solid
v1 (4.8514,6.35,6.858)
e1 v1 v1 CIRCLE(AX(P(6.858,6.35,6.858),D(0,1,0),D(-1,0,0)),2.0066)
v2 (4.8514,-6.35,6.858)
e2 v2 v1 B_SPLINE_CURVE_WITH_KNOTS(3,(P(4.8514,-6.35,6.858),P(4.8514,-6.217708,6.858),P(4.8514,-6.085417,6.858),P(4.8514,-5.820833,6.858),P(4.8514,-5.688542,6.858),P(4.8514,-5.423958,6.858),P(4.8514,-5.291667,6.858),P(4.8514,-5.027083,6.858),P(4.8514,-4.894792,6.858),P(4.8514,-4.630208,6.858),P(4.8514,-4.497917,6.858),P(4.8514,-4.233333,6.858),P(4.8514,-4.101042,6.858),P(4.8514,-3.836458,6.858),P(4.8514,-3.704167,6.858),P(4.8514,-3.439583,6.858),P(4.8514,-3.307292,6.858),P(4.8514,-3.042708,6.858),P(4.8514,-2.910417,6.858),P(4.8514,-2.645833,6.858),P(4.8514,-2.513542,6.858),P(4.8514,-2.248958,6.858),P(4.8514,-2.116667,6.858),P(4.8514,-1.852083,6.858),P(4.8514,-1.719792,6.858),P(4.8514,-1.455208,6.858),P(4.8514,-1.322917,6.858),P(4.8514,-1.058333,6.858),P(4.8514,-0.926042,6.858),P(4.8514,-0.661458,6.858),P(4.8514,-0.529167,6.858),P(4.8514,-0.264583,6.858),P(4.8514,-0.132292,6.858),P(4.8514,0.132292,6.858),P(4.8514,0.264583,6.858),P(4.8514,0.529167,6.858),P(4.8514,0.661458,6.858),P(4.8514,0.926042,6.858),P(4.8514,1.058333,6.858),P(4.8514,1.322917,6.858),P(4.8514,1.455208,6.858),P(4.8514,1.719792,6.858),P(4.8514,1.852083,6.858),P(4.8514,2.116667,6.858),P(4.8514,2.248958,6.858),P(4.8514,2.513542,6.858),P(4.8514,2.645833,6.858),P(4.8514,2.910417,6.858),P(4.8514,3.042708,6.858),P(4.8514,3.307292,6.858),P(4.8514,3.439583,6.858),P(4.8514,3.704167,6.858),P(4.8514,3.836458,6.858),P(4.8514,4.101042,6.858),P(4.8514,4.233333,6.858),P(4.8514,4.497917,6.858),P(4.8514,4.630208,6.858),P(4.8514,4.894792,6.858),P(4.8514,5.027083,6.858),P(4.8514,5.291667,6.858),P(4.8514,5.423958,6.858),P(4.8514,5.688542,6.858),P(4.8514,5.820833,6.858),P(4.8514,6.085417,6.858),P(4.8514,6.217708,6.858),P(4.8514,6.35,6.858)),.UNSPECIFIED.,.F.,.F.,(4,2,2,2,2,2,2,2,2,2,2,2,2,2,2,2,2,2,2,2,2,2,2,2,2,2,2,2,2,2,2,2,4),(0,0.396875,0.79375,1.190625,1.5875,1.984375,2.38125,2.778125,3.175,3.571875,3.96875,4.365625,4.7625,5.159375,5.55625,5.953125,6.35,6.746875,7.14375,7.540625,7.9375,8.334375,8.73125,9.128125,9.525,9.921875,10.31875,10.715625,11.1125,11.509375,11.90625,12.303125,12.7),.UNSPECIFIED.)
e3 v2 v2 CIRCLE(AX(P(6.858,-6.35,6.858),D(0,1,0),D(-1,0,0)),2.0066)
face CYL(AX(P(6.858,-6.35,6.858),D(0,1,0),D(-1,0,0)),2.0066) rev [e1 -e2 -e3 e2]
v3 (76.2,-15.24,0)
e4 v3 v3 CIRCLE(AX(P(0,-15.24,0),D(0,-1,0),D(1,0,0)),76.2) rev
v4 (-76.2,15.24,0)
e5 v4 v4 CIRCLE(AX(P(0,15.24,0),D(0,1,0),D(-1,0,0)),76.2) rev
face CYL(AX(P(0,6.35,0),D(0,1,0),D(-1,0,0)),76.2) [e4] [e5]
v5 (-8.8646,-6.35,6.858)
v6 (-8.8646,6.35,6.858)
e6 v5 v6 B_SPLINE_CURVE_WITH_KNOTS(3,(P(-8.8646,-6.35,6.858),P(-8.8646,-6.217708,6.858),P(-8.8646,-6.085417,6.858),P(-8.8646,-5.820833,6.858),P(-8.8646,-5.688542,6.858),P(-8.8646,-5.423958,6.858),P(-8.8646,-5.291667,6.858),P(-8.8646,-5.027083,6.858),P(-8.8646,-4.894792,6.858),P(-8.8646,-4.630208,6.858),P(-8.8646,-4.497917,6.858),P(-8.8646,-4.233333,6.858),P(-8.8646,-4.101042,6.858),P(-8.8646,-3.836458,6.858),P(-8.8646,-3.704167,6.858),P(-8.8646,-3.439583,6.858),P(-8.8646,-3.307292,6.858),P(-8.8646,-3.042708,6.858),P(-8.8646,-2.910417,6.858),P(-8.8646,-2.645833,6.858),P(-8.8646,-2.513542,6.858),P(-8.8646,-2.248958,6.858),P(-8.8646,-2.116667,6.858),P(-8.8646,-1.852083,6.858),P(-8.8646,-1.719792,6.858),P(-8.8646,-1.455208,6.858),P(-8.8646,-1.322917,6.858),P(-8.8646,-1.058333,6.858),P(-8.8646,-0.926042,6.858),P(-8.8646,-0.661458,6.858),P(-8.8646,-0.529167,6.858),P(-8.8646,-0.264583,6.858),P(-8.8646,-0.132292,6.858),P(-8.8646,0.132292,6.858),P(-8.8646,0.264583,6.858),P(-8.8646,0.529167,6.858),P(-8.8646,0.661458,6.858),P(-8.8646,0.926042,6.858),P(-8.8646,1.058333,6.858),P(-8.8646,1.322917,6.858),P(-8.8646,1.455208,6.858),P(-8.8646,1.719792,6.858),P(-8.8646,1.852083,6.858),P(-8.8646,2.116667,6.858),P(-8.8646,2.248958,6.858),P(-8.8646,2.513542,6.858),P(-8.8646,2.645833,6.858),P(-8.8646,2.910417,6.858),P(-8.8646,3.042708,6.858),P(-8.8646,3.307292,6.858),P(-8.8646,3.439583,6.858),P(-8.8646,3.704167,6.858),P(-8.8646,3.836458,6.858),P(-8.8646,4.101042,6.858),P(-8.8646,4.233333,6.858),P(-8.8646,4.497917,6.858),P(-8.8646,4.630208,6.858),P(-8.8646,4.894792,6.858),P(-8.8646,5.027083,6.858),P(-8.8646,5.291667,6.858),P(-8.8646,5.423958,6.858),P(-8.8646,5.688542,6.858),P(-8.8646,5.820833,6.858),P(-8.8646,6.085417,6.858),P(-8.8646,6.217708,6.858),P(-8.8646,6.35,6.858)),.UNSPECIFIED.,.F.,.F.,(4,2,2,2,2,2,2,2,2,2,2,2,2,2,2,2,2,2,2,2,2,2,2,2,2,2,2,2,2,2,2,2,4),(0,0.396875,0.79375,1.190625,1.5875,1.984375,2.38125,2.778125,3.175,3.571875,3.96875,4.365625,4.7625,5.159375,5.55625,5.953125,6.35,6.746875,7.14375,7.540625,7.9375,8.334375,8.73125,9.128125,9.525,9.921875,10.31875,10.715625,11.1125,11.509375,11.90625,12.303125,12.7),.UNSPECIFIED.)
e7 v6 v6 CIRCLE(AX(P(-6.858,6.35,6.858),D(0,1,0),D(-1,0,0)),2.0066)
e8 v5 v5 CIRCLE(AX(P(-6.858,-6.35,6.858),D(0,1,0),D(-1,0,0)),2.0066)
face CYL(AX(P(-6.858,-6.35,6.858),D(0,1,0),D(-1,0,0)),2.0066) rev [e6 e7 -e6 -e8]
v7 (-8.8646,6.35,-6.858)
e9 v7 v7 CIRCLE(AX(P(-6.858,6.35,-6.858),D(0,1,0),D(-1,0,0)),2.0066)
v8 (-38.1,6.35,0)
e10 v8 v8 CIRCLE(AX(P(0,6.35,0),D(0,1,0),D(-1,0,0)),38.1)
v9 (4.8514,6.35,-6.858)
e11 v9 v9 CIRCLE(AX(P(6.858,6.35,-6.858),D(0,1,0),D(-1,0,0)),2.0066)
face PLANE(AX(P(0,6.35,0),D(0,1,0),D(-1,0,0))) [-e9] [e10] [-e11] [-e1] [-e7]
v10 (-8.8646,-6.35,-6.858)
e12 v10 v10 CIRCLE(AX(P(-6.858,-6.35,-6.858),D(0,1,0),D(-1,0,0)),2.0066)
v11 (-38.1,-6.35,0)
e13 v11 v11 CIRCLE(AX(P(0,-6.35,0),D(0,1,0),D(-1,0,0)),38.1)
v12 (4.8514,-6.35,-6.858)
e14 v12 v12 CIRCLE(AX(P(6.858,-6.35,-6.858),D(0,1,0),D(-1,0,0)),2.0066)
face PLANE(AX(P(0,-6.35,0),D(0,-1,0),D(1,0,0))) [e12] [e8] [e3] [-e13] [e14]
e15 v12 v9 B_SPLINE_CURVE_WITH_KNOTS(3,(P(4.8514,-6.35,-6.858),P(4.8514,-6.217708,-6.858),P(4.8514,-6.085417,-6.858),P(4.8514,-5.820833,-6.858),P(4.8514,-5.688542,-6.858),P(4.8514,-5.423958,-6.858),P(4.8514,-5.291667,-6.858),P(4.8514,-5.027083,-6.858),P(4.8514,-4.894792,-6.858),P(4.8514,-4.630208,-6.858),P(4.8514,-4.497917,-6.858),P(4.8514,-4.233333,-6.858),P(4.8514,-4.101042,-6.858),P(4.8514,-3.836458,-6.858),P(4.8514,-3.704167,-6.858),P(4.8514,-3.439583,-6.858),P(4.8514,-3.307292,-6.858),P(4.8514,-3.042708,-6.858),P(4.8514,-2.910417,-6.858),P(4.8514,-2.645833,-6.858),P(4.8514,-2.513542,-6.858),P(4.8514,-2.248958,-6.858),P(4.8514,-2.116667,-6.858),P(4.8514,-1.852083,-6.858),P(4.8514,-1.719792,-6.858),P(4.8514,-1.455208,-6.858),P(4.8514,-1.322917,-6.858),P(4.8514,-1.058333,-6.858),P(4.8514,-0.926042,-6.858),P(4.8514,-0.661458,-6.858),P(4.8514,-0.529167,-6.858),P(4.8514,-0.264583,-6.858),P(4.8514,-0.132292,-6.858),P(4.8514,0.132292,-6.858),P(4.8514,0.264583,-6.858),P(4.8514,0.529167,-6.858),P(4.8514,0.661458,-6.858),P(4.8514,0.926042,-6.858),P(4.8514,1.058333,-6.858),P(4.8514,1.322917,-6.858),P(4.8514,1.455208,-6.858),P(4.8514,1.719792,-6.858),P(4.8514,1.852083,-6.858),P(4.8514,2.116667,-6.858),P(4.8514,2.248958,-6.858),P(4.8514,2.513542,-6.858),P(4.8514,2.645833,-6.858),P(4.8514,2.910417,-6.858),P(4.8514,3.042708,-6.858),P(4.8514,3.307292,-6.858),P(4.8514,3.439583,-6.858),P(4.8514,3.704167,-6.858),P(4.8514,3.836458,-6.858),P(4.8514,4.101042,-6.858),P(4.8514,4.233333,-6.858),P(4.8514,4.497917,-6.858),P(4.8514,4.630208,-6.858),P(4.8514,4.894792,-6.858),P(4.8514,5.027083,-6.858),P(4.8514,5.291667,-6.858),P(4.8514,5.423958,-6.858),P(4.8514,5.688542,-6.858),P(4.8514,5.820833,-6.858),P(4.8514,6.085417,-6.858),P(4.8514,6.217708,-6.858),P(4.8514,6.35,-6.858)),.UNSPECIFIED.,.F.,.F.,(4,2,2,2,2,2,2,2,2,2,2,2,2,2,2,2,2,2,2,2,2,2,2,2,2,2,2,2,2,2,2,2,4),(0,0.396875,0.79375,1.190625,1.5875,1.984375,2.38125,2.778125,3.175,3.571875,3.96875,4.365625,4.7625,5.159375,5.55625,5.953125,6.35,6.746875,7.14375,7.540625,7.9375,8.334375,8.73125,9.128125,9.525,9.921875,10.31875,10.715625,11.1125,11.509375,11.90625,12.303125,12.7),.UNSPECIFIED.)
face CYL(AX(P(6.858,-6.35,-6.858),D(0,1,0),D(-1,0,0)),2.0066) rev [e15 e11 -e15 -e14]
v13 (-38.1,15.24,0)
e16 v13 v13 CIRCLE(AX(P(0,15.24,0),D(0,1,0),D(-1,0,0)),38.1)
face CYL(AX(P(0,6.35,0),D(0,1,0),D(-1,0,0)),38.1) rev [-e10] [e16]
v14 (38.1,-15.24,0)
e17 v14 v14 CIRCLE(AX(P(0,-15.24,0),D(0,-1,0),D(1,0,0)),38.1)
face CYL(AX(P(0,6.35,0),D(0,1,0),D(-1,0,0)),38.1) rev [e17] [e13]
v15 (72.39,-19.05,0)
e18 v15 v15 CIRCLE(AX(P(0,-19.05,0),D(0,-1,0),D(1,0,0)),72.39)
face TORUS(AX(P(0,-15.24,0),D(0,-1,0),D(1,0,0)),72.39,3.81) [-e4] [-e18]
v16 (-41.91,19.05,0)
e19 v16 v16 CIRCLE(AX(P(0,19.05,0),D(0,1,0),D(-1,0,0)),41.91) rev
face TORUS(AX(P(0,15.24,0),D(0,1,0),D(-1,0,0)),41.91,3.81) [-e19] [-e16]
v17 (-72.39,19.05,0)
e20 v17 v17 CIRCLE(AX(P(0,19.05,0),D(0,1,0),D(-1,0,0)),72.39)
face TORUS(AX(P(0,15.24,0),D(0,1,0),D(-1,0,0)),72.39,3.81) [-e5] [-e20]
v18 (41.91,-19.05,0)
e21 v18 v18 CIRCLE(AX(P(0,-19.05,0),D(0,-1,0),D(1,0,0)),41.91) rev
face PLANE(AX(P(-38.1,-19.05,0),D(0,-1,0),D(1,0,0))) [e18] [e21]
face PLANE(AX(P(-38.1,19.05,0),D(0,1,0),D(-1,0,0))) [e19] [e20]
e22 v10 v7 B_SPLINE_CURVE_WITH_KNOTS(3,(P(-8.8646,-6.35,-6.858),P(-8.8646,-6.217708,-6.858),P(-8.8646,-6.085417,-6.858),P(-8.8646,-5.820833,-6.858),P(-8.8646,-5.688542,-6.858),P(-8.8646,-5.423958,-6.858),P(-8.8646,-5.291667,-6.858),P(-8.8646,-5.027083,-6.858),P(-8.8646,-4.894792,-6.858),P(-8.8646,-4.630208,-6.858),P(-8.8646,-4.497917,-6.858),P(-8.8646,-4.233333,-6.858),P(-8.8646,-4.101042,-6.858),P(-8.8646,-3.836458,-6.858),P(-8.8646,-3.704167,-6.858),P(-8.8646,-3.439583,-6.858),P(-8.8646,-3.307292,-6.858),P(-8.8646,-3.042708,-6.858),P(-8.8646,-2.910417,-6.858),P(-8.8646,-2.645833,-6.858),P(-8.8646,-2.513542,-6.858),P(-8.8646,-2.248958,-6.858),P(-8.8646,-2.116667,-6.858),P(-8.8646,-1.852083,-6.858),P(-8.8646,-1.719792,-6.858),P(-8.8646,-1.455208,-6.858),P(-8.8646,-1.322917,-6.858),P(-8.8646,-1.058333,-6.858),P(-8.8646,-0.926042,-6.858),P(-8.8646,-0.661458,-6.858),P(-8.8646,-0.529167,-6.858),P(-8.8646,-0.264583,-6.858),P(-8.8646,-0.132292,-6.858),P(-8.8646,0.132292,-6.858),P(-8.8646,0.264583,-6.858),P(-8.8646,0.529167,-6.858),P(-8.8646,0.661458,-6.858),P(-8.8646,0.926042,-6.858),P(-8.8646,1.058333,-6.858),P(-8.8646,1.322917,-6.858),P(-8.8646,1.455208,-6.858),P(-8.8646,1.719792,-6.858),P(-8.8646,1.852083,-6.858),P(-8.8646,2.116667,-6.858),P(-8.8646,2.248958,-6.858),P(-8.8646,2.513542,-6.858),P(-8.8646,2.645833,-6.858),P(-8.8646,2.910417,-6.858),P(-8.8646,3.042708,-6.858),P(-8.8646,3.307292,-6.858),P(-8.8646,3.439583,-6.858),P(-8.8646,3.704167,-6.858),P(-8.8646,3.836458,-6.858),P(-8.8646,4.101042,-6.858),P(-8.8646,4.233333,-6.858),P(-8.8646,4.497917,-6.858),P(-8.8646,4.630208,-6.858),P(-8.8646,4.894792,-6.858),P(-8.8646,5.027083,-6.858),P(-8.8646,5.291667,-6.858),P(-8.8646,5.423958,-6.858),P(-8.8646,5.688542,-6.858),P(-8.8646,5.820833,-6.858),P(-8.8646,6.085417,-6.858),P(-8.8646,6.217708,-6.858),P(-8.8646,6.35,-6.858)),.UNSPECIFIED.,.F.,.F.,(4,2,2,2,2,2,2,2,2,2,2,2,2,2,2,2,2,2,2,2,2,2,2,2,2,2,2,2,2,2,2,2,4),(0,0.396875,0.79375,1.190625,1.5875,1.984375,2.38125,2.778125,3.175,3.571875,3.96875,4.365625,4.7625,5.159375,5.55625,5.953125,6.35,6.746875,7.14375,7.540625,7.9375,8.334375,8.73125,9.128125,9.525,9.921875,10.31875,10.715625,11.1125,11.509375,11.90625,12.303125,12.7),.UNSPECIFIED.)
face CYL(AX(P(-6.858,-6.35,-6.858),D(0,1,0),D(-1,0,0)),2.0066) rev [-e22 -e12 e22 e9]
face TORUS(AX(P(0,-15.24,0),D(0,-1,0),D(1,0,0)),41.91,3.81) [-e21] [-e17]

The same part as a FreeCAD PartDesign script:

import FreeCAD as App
import Part
import Sketcher
from FreeCAD import Vector
Q = App.Units.Quantity


def edges_at(feature, points):
    """Names of the edges that pass closest to the given points."""
    edges = feature.Shape.Edges
    near = lambda p: min(range(len(edges)), key=lambda i: edges[i].distToShape(Part.Vertex(*p))[0])
    return sorted({f"Edge{near(p) + 1}" for p in points})


def add_polygon(sketch, points):
    """Adds a closed chain of lines whose ends are joined by coincident constraints."""
    first, n = sketch.GeometryCount, len(points)
    for a, b in zip(points, points[1:] + points[:1]):
        sketch.addGeometry(Part.LineSegment(App.Vector(*a, 0), App.Vector(*b, 0)), False)
    for i in range(n):
        sketch.addConstraint(Sketcher.Constraint("Coincident", first + i, 2, first + (i + 1) % n, 1))

doc = App.newDocument("Part")
body = doc.addObject("PartDesign::Body", "Body")

sketch1 = doc.addObject("Sketcher::SketchObject", "Sketch")
body.addObject(sketch1)
sketch1.AttachmentSupport = (doc.XY_Plane, [""])
sketch1.MapMode = "FlatFace"
add_polygon(sketch1, [(0, -6), (0, 6), (-38, 6), (-38, 19), (-76, 19), (-76, -19), (-38, -19), (-38, -6)])
sketch1.addConstraint([
    Sketcher.Constraint("Vertical", 0),
    Sketcher.Constraint("Horizontal", 1),
    Sketcher.Constraint("Vertical", 2),
    Sketcher.Constraint("Horizontal", 3),
    Sketcher.Constraint("Vertical", 4),
    Sketcher.Constraint("Horizontal", 5),
    Sketcher.Constraint("Vertical", 6),
    Sketcher.Constraint("Horizontal", 7),
    Sketcher.Constraint("Symmetric", 0, 2, 7, 2, -1, 1),
    Sketcher.Constraint("Symmetric", 2, 2, 5, 2, -1),
    Sketcher.Constraint("Equal", 1, 3),
    Sketcher.Constraint("Equal", 0, 2),
    Sketcher.Constraint("Equal", 7, 4),
    Sketcher.Constraint("DistanceX", 1, 2, 1, 1, Q("1.5 in")),
])
revolution = doc.addObject("PartDesign::Revolution", "Revolution")
body.addObject(revolution)
revolution.Profile = sketch1
revolution.ReferenceAxis = (sketch1, ["V_Axis"])
revolution.Angle = 360
doc.recompute()

fillet = doc.addObject("PartDesign::Fillet", "Fillet")
body.addObject(fillet)
fillet.Base = (revolution, edges_at(revolution, [
    (38.1, 19.05, 0),
    (38.1, -19.05, 0),
    (76.2, -19.05, 0),
    (76.2, 19.05, 0),
]))
fillet.Radius = Q("0.15 in")

sketch2 = doc.addObject("Sketcher::SketchObject", "Sketch001")
body.addObject(sketch2)
sketch2.AttachmentSupport = (doc.XZ_Plane, [""])
sketch2.MapMode = "FlatFace"
sketch2.AttachmentOffset = App.Placement(Vector(0, 0, -0.25 * 25.4), App.Rotation())
sketch2.addGeometry([
    Part.Circle(Vector(-6.9, -6.9, 0), Vector(0, 0, 1), 2),
    Part.Circle(Vector(6.9, -6.9, 0), Vector(0, 0, 1), 2),
    Part.Circle(Vector(6.9, 6.9, 0), Vector(0, 0, 1), 2),
    Part.Circle(Vector(-6.9, 6.9, 0), Vector(0, 0, 1), 2),
], False)
sketch2.addConstraint([
    Sketcher.Constraint("Equal", 0, 1),
    Sketcher.Constraint("Equal", 1, 2),
    Sketcher.Constraint("Equal", 2, 3),
    Sketcher.Constraint("Symmetric", 0, 3, 2, 3, -1, 1),
    Sketcher.Constraint("Symmetric", 1, 3, 3, 3, -1, 1),
    Sketcher.Constraint("Symmetric", 0, 3, 1, 3, -2),
    Sketcher.Constraint("Diameter", 0, Q("0.158 in")),
    Sketcher.Constraint("DistanceX", 0, 3, -1, 1, Q("0.27 in")),
    Sketcher.Constraint("DistanceY", 0, 3, -1, 1, Q("0.27 in")),
])
pocket1 = doc.addObject("PartDesign::Pocket", "Pocket")
body.addObject(pocket1)
pocket1.Profile = sketch2
pocket1.Length = Q("0.5 in")
pocket1.Reversed = True

doc.recompute()
